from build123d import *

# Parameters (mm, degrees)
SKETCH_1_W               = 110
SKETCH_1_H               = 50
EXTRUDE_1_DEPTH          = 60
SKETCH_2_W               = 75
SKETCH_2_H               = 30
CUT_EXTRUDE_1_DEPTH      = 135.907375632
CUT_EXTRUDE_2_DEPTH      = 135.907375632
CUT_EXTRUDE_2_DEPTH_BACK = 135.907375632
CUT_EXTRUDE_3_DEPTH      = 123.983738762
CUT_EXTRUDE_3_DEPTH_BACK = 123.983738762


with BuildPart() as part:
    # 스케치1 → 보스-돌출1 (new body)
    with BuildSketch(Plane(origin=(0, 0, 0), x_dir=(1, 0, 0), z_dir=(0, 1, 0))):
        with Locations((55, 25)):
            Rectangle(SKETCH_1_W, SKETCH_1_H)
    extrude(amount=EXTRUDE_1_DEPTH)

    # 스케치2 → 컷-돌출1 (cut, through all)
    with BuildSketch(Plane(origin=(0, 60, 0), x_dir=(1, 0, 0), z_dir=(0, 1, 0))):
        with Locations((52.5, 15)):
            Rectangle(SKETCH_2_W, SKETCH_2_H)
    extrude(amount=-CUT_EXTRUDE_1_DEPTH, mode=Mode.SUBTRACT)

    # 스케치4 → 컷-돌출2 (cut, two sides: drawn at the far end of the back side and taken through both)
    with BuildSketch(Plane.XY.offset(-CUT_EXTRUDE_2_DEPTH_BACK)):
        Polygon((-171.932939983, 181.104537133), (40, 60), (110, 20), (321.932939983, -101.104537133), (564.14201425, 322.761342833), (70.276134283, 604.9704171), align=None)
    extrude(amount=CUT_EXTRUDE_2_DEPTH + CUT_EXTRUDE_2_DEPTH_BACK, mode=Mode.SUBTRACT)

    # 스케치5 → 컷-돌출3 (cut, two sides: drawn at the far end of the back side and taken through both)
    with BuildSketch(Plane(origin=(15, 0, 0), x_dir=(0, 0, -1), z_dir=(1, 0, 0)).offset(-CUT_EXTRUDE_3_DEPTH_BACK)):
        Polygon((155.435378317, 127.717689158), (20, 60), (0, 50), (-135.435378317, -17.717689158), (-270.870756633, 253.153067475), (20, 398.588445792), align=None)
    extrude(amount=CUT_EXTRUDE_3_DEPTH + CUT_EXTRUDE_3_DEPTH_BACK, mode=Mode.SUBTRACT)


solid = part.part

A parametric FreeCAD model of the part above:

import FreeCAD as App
import Part
import Sketcher

V = App.Vector
Q = App.Units.Quantity

doc = App.newDocument("Part")
body = doc.addObject("PartDesign::Body", "Body")

# Sketch on XZ plane
sketch1 = body.newObject("Sketcher::SketchObject", "Sketch")
sketch1.AttachmentSupport = (doc.getObject("XZ_Plane"), [""])
sketch1.MapMode = "FlatFace"
sketch1.addGeometry([
    Part.LineSegment(V(0, -50, 0), V(0, 0, 0)),
    Part.LineSegment(V(0, 0, 0), V(110, 0, 0)),
    Part.LineSegment(V(110, 0, 0), V(110, -50, 0)),
    Part.LineSegment(V(110, -50, 0), V(0, -50, 0)),
], False)
sketch1.addConstraint([
    Sketcher.Constraint("Coincident", 0, 2, 1, 1),
    Sketcher.Constraint("Coincident", 1, 2, 2, 1),
    Sketcher.Constraint("Coincident", 2, 2, 3, 1),
    Sketcher.Constraint("Coincident", 3, 2, 0, 1),
    Sketcher.Constraint("Vertical", 0),
    Sketcher.Constraint("Horizontal", 1),
    Sketcher.Constraint("Vertical", 2),
    Sketcher.Constraint("Horizontal", 3),
    Sketcher.Constraint("Coincident", 0, 2, -1, 1),
    Sketcher.Constraint("DistanceX", 1, 1, 1, 2, Q("110 mm")),
    Sketcher.Constraint("DistanceY", 0, 1, 0, 2, Q("50 mm")),
])
pad1 = body.newObject("PartDesign::Pad", "Pad")
pad1.Profile = sketch1
pad1.Length = 60
pad1.Reversed = True

# Sketch on XZ plane
sketch2 = body.newObject("Sketcher::SketchObject", "Sketch001")
sketch2.AttachmentSupport = (doc.getObject("XZ_Plane"), [""])
sketch2.MapMode = "FlatFace"
sketch2.AttachmentOffset = App.Placement(V(0, 0, -60), App.Rotation())
sketch2.addGeometry([
    Part.LineSegment(V(15, -30, 0), V(15, 0, 0)),
    Part.LineSegment(V(15, 0, 0), V(90, 0, 0)),
    Part.LineSegment(V(90, 0, 0), V(90, -30, 0)),
    Part.LineSegment(V(90, -30, 0), V(15, -30, 0)),
], False)
sketch2.addConstraint([
    Sketcher.Constraint("Coincident", 0, 2, 1, 1),
    Sketcher.Constraint("Coincident", 1, 2, 2, 1),
    Sketcher.Constraint("Coincident", 2, 2, 3, 1),
    Sketcher.Constraint("Coincident", 3, 2, 0, 1),
    Sketcher.Constraint("Vertical", 0),
    Sketcher.Constraint("Horizontal", 1),
    Sketcher.Constraint("Vertical", 2),
    Sketcher.Constraint("Horizontal", 3),
    Sketcher.Constraint("PointOnObject", 0, 2, -1),
    Sketcher.Constraint("DistanceX", 1, 1, 1, 2, Q("75 mm")),
    Sketcher.Constraint("DistanceY", 0, 1, 0, 2, Q("30 mm")),
    Sketcher.Constraint("DistanceX", -1, 1, 0, 2, Q("15 mm")),
])
pocket1 = body.newObject("PartDesign::Pocket", "Pocket")
pocket1.Profile = sketch2
pocket1.Type = "ThroughAll"
pocket1.Reversed = True

# Sketch on XY plane
sketch3 = body.newObject("Sketcher::SketchObject", "Sketch002")
sketch3.AttachmentSupport = (doc.getObject("XY_Plane"), [""])
sketch3.MapMode = "FlatFace"
sketch3.addGeometry([
    Part.LineSegment(V(-171.93294, 181.104537, 0), V(321.93294, -101.104537, 0)),
    Part.LineSegment(V(321.93294, -101.104537, 0), V(564.142014, 322.761343, 0)),
    Part.LineSegment(V(564.142014, 322.761343, 0), V(70.276134, 604.970417, 0)),
    Part.LineSegment(V(70.276134, 604.970417, 0), V(-171.93294, 181.104537, 0)),
], False)
sketch3.addConstraint([
    Sketcher.Constraint("Coincident", 0, 2, 1, 1),
    Sketcher.Constraint("Coincident", 1, 2, 2, 1),
    Sketcher.Constraint("Coincident", 2, 2, 3, 1),
    Sketcher.Constraint("Coincident", 3, 2, 0, 1),
    Sketcher.Constraint("Perpendicular", 0, 1),
    Sketcher.Constraint("Perpendicular", 1, 2),
    Sketcher.Constraint("Perpendicular", 2, 3),
    Sketcher.Constraint("DistanceX", -1, 1, 0, 2, Q("321.93294 mm")),
    Sketcher.Constraint("DistanceX", 3, 2, -1, 1, Q("171.93294 mm")),
    Sketcher.Constraint("DistanceY", 0, 2, 1, 2, Q("423.86588 mm")),
    Sketcher.Constraint("Distance", 0, Q("568.810574 mm")),
    Sketcher.Constraint("DistanceY", 0, 2, -1, 1, Q("101.104537 mm")),
])
pocket2 = body.newObject("PartDesign::Pocket", "Pocket001")
pocket2.Profile = sketch3
pocket2.Type = "ThroughAll"
pocket2.Midplane = True

# Sketch on YZ plane
sketch4 = body.newObject("Sketcher::SketchObject", "Sketch003")
sketch4.AttachmentSupport = (doc.getObject("YZ_Plane"), [""])
sketch4.MapMode = "FlatFace"
sketch4.AttachmentOffset = App.Placement(V(0, 0, 15), App.Rotation())
sketch4.addGeometry([
    Part.LineSegment(V(60, -20, 0), V(127.717689, -155.435378, 0)),  # 0
    Part.LineSegment(V(127.717689, -155.435378, 0), V(398.588446, -20, 0)),  # 1
    Part.LineSegment(V(398.588446, -20, 0), V(253.153067, 270.870757, 0)),  # 2
    Part.LineSegment(V(253.153067, 270.870757, 0), V(-17.717689, 135.435378, 0)),  # 3
    Part.LineSegment(V(-17.717689, 135.435378, 0), V(50, 0, 0)),  # 4
    Part.LineSegment(V(50, 0, 0), V(60, -20, 0)),  # 5
], False)
sketch4.addConstraint([
    Sketcher.Constraint("Coincident", 0, 2, 1, 1),
    Sketcher.Constraint("Coincident", 1, 2, 2, 1),
    Sketcher.Constraint("Coincident", 2, 2, 3, 1),
    Sketcher.Constraint("Coincident", 3, 2, 4, 1),
    Sketcher.Constraint("Coincident", 4, 2, 5, 1),
    Sketcher.Constraint("Coincident", 5, 2, 0, 1),
    Sketcher.Constraint("PointOnObject", 4, 2, -1),
    Sketcher.Constraint("Perpendicular", 0, 1),
    Sketcher.Constraint("Perpendicular", 1, 2),
    Sketcher.Constraint("Perpendicular", 2, 3),
    Sketcher.Constraint("Perpendicular", 3, 4),
    Sketcher.Constraint("Parallel", 4, 5),
    Sketcher.Constraint("Horizontal", 1, 2, 5, 2),
    Sketcher.Constraint("Equal", 0, 4),
    Sketcher.Constraint("DistanceY", 1, 2, -1, 1, Q("20 mm")),
    Sketcher.Constraint("DistanceX", -1, 1, 4, 2, Q("50 mm")),
    Sketcher.Constraint("DistanceX", -1, 1, 5, 2, Q("60 mm")),
    Sketcher.Constraint("DistanceX", -1, 1, 0, 2, Q("127.717689 mm")),
])
pocket3 = body.newObject("PartDesign::Pocket", "Pocket002")
pocket3.Profile = sketch4
pocket3.Type = "ThroughAll"
pocket3.Midplane = True

doc.recompute()
